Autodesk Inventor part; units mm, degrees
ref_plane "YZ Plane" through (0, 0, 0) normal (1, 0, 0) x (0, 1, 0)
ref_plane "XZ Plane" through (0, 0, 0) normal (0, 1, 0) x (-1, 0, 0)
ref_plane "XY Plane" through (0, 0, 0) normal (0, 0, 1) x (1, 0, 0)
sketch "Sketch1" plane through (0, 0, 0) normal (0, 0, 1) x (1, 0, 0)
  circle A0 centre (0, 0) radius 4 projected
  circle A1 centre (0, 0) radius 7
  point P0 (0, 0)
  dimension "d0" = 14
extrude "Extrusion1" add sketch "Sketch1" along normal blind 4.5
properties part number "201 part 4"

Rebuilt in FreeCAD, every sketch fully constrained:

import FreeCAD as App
import Part
import Sketcher

V = App.Vector
Q = App.Units.Quantity

doc = App.newDocument("Part")
body = doc.addObject("PartDesign::Body", "Body")

# Sketch on XY plane
sketch1 = body.newObject("Sketcher::SketchObject", "Sketch")
sketch1.AttachmentSupport = (doc.getObject("XY_Plane"), [""])
sketch1.MapMode = "FlatFace"
sketch1.addGeometry(Part.Circle(V(0, 0, 0), V(0, 0, 1), 7), False)
sketch1.addGeometry(Part.Circle(V(0, 0, 0), V(0, 0, 1), 4), False)
sketch1.addConstraint(Sketcher.Constraint("Coincident", 0, 3, -1, 1))
sketch1.addConstraint(Sketcher.Constraint("Coincident", 1, 3, -1, 1))
sketch1.addConstraint(Sketcher.Constraint("Diameter", 0, Q("14 mm")))
sketch1.addConstraint(Sketcher.Constraint("Diameter", 1, Q("8 mm")))
pad1 = body.newObject("PartDesign::Pad", "Pad")
pad1.Profile = sketch1
pad1.Length = 4.5

doc.recompute()
